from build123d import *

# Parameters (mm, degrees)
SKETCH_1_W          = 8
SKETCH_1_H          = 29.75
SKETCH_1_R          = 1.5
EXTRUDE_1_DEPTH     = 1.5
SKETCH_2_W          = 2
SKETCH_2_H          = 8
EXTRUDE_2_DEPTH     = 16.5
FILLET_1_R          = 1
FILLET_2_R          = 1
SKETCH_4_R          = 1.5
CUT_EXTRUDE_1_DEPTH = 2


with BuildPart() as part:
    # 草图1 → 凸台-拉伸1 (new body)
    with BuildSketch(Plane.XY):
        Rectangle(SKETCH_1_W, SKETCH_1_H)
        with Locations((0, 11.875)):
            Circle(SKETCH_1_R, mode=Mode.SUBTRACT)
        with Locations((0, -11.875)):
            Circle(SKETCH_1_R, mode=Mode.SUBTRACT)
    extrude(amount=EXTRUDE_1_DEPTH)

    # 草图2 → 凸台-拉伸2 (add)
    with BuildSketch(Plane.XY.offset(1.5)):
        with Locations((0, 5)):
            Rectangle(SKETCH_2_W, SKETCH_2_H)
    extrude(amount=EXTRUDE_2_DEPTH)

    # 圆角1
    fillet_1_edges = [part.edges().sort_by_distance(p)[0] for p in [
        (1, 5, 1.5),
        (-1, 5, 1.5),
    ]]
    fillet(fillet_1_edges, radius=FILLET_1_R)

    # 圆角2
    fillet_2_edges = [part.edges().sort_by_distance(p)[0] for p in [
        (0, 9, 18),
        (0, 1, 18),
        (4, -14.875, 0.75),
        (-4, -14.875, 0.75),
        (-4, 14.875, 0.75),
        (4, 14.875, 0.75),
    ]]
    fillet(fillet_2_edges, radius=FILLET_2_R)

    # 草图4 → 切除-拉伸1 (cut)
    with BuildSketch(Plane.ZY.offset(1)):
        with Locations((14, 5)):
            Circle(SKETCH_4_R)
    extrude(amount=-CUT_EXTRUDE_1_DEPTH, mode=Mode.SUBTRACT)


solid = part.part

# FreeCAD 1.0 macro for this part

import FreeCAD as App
import Part
import Sketcher
from FreeCAD import Vector


def edges_at(feature, points):
    """Names of the edges that pass closest to the given points."""
    edges = feature.Shape.Edges
    near = lambda p: min(range(len(edges)), key=lambda i: edges[i].distToShape(Part.Vertex(*p))[0])
    return sorted({f"Edge{near(p) + 1}" for p in points})


def add_polygon(sketch, points):
    """Adds a closed chain of lines whose ends are joined by coincident constraints."""
    first, n = sketch.GeometryCount, len(points)
    for a, b in zip(points, points[1:] + points[:1]):
        sketch.addGeometry(Part.LineSegment(App.Vector(*a, 0), App.Vector(*b, 0)), False)
    for i in range(n):
        sketch.addConstraint(Sketcher.Constraint("Coincident", first + i, 2, first + (i + 1) % n, 1))

doc = App.newDocument("Part")
body = doc.addObject("PartDesign::Body", "Body")

sketch1 = body.newObject("Sketcher::SketchObject", "Sketch")
sketch1.AttachmentSupport = (doc.getObject("XY_Plane"), [""])
sketch1.MapMode = "FlatFace"
add_polygon(sketch1, [(-4, 14.875), (-4, -14.875), (4, -14.875), (4, 14.875)])
sketch1.addGeometry(Part.Circle(Vector(0, -11.875, 0), Vector(0, 0, 1), 1.5), False)
sketch1.addGeometry(Part.Circle(Vector(0, 11.875, 0), Vector(0, 0, 1), 1.5), False)
sketch1.addConstraint([
    Sketcher.Constraint("Vertical", 0),
    Sketcher.Constraint("Horizontal", 1),
    Sketcher.Constraint("Vertical", 2),
    Sketcher.Constraint("Horizontal", 3),
    Sketcher.Constraint("Equal", 4, 5),
    Sketcher.Constraint("Symmetric", 4, 3, 5, 3, -1, 1),
    Sketcher.Constraint("Symmetric", 0, 2, 2, 2, -1, 1),
    Sketcher.Constraint("PointOnObject", 4, 3, -2),
    Sketcher.Constraint("Diameter", 4, 3.0),
    Sketcher.Constraint("DistanceX", 1, 1, 1, 2, 8.0),
    Sketcher.Constraint("DistanceY", 0, 2, 4, 3, 3.0),
    Sketcher.Constraint("DistanceY", 0, 2, 0, 1, 29.75),
])
pad1 = body.newObject("PartDesign::Pad", "Pad")
pad1.Profile = sketch1
pad1.Length = 1.5

sketch2 = body.newObject("Sketcher::SketchObject", "Sketch001")
sketch2.AttachmentSupport = (doc.getObject("XY_Plane"), [""])
sketch2.MapMode = "FlatFace"
sketch2.AttachmentOffset = App.Placement(Vector(0, 0, 1.5), App.Rotation())
add_polygon(sketch2, [(-1, 9), (-1, 1), (1, 1), (1, 9)])
sketch2.addConstraint([
    Sketcher.Constraint("Vertical", 0),
    Sketcher.Constraint("Horizontal", 1),
    Sketcher.Constraint("Vertical", 2),
    Sketcher.Constraint("Horizontal", 3),
    Sketcher.Constraint("DistanceX", 1, 1, 1, 2, 2.0),
    Sketcher.Constraint("DistanceY", 0, 2, 0, 1, 8.0),
    Sketcher.Constraint("DistanceX", 0, 2, -1, 1, 1.0),
    Sketcher.Constraint("DistanceY", -1, 1, 0, 2, 1.0),
])
pad2 = body.newObject("PartDesign::Pad", "Pad001")
pad2.Profile = sketch2
pad2.Length = 16.5
doc.recompute()

fillet = body.newObject("PartDesign::Fillet", "Fillet")
fillet.Base = (pad2, edges_at(pad2, [(1, 5, 1.5), (-1, 5, 1.5)]))
fillet.Radius = 1
doc.recompute()

fillet2 = body.newObject("PartDesign::Fillet", "Fillet001")
fillet2.Base = (fillet, edges_at(fillet, [
    (0, 9, 18),
    (0, 1, 18),
    (4, -14.875, 0.75),
    (-4, -14.875, 0.75),
    (-4, 14.875, 0.75),
    (4, 14.875, 0.75),
]))
fillet2.Radius = 1

sketch3 = body.newObject("Sketcher::SketchObject", "Sketch002")
sketch3.AttachmentSupport = (doc.getObject("YZ_Plane"), [""])
sketch3.MapMode = "FlatFace"
sketch3.AttachmentOffset = App.Placement(Vector(0, 0, -1), App.Rotation())
sketch3.addGeometry(Part.Circle(Vector(5, 14, 0), Vector(0, 0, 1), 1.5), False)
sketch3.addConstraint([
    Sketcher.Constraint("Diameter", 0, 3.0),
    Sketcher.Constraint("DistanceX", -1, 1, 0, 3, 5.0),
    Sketcher.Constraint("DistanceY", -1, 1, 0, 3, 14.0),
])
pocket1 = body.newObject("PartDesign::Pocket", "Pocket")
pocket1.Profile = sketch3
pocket1.Length = 2
pocket1.Reversed = True

doc.recompute()
